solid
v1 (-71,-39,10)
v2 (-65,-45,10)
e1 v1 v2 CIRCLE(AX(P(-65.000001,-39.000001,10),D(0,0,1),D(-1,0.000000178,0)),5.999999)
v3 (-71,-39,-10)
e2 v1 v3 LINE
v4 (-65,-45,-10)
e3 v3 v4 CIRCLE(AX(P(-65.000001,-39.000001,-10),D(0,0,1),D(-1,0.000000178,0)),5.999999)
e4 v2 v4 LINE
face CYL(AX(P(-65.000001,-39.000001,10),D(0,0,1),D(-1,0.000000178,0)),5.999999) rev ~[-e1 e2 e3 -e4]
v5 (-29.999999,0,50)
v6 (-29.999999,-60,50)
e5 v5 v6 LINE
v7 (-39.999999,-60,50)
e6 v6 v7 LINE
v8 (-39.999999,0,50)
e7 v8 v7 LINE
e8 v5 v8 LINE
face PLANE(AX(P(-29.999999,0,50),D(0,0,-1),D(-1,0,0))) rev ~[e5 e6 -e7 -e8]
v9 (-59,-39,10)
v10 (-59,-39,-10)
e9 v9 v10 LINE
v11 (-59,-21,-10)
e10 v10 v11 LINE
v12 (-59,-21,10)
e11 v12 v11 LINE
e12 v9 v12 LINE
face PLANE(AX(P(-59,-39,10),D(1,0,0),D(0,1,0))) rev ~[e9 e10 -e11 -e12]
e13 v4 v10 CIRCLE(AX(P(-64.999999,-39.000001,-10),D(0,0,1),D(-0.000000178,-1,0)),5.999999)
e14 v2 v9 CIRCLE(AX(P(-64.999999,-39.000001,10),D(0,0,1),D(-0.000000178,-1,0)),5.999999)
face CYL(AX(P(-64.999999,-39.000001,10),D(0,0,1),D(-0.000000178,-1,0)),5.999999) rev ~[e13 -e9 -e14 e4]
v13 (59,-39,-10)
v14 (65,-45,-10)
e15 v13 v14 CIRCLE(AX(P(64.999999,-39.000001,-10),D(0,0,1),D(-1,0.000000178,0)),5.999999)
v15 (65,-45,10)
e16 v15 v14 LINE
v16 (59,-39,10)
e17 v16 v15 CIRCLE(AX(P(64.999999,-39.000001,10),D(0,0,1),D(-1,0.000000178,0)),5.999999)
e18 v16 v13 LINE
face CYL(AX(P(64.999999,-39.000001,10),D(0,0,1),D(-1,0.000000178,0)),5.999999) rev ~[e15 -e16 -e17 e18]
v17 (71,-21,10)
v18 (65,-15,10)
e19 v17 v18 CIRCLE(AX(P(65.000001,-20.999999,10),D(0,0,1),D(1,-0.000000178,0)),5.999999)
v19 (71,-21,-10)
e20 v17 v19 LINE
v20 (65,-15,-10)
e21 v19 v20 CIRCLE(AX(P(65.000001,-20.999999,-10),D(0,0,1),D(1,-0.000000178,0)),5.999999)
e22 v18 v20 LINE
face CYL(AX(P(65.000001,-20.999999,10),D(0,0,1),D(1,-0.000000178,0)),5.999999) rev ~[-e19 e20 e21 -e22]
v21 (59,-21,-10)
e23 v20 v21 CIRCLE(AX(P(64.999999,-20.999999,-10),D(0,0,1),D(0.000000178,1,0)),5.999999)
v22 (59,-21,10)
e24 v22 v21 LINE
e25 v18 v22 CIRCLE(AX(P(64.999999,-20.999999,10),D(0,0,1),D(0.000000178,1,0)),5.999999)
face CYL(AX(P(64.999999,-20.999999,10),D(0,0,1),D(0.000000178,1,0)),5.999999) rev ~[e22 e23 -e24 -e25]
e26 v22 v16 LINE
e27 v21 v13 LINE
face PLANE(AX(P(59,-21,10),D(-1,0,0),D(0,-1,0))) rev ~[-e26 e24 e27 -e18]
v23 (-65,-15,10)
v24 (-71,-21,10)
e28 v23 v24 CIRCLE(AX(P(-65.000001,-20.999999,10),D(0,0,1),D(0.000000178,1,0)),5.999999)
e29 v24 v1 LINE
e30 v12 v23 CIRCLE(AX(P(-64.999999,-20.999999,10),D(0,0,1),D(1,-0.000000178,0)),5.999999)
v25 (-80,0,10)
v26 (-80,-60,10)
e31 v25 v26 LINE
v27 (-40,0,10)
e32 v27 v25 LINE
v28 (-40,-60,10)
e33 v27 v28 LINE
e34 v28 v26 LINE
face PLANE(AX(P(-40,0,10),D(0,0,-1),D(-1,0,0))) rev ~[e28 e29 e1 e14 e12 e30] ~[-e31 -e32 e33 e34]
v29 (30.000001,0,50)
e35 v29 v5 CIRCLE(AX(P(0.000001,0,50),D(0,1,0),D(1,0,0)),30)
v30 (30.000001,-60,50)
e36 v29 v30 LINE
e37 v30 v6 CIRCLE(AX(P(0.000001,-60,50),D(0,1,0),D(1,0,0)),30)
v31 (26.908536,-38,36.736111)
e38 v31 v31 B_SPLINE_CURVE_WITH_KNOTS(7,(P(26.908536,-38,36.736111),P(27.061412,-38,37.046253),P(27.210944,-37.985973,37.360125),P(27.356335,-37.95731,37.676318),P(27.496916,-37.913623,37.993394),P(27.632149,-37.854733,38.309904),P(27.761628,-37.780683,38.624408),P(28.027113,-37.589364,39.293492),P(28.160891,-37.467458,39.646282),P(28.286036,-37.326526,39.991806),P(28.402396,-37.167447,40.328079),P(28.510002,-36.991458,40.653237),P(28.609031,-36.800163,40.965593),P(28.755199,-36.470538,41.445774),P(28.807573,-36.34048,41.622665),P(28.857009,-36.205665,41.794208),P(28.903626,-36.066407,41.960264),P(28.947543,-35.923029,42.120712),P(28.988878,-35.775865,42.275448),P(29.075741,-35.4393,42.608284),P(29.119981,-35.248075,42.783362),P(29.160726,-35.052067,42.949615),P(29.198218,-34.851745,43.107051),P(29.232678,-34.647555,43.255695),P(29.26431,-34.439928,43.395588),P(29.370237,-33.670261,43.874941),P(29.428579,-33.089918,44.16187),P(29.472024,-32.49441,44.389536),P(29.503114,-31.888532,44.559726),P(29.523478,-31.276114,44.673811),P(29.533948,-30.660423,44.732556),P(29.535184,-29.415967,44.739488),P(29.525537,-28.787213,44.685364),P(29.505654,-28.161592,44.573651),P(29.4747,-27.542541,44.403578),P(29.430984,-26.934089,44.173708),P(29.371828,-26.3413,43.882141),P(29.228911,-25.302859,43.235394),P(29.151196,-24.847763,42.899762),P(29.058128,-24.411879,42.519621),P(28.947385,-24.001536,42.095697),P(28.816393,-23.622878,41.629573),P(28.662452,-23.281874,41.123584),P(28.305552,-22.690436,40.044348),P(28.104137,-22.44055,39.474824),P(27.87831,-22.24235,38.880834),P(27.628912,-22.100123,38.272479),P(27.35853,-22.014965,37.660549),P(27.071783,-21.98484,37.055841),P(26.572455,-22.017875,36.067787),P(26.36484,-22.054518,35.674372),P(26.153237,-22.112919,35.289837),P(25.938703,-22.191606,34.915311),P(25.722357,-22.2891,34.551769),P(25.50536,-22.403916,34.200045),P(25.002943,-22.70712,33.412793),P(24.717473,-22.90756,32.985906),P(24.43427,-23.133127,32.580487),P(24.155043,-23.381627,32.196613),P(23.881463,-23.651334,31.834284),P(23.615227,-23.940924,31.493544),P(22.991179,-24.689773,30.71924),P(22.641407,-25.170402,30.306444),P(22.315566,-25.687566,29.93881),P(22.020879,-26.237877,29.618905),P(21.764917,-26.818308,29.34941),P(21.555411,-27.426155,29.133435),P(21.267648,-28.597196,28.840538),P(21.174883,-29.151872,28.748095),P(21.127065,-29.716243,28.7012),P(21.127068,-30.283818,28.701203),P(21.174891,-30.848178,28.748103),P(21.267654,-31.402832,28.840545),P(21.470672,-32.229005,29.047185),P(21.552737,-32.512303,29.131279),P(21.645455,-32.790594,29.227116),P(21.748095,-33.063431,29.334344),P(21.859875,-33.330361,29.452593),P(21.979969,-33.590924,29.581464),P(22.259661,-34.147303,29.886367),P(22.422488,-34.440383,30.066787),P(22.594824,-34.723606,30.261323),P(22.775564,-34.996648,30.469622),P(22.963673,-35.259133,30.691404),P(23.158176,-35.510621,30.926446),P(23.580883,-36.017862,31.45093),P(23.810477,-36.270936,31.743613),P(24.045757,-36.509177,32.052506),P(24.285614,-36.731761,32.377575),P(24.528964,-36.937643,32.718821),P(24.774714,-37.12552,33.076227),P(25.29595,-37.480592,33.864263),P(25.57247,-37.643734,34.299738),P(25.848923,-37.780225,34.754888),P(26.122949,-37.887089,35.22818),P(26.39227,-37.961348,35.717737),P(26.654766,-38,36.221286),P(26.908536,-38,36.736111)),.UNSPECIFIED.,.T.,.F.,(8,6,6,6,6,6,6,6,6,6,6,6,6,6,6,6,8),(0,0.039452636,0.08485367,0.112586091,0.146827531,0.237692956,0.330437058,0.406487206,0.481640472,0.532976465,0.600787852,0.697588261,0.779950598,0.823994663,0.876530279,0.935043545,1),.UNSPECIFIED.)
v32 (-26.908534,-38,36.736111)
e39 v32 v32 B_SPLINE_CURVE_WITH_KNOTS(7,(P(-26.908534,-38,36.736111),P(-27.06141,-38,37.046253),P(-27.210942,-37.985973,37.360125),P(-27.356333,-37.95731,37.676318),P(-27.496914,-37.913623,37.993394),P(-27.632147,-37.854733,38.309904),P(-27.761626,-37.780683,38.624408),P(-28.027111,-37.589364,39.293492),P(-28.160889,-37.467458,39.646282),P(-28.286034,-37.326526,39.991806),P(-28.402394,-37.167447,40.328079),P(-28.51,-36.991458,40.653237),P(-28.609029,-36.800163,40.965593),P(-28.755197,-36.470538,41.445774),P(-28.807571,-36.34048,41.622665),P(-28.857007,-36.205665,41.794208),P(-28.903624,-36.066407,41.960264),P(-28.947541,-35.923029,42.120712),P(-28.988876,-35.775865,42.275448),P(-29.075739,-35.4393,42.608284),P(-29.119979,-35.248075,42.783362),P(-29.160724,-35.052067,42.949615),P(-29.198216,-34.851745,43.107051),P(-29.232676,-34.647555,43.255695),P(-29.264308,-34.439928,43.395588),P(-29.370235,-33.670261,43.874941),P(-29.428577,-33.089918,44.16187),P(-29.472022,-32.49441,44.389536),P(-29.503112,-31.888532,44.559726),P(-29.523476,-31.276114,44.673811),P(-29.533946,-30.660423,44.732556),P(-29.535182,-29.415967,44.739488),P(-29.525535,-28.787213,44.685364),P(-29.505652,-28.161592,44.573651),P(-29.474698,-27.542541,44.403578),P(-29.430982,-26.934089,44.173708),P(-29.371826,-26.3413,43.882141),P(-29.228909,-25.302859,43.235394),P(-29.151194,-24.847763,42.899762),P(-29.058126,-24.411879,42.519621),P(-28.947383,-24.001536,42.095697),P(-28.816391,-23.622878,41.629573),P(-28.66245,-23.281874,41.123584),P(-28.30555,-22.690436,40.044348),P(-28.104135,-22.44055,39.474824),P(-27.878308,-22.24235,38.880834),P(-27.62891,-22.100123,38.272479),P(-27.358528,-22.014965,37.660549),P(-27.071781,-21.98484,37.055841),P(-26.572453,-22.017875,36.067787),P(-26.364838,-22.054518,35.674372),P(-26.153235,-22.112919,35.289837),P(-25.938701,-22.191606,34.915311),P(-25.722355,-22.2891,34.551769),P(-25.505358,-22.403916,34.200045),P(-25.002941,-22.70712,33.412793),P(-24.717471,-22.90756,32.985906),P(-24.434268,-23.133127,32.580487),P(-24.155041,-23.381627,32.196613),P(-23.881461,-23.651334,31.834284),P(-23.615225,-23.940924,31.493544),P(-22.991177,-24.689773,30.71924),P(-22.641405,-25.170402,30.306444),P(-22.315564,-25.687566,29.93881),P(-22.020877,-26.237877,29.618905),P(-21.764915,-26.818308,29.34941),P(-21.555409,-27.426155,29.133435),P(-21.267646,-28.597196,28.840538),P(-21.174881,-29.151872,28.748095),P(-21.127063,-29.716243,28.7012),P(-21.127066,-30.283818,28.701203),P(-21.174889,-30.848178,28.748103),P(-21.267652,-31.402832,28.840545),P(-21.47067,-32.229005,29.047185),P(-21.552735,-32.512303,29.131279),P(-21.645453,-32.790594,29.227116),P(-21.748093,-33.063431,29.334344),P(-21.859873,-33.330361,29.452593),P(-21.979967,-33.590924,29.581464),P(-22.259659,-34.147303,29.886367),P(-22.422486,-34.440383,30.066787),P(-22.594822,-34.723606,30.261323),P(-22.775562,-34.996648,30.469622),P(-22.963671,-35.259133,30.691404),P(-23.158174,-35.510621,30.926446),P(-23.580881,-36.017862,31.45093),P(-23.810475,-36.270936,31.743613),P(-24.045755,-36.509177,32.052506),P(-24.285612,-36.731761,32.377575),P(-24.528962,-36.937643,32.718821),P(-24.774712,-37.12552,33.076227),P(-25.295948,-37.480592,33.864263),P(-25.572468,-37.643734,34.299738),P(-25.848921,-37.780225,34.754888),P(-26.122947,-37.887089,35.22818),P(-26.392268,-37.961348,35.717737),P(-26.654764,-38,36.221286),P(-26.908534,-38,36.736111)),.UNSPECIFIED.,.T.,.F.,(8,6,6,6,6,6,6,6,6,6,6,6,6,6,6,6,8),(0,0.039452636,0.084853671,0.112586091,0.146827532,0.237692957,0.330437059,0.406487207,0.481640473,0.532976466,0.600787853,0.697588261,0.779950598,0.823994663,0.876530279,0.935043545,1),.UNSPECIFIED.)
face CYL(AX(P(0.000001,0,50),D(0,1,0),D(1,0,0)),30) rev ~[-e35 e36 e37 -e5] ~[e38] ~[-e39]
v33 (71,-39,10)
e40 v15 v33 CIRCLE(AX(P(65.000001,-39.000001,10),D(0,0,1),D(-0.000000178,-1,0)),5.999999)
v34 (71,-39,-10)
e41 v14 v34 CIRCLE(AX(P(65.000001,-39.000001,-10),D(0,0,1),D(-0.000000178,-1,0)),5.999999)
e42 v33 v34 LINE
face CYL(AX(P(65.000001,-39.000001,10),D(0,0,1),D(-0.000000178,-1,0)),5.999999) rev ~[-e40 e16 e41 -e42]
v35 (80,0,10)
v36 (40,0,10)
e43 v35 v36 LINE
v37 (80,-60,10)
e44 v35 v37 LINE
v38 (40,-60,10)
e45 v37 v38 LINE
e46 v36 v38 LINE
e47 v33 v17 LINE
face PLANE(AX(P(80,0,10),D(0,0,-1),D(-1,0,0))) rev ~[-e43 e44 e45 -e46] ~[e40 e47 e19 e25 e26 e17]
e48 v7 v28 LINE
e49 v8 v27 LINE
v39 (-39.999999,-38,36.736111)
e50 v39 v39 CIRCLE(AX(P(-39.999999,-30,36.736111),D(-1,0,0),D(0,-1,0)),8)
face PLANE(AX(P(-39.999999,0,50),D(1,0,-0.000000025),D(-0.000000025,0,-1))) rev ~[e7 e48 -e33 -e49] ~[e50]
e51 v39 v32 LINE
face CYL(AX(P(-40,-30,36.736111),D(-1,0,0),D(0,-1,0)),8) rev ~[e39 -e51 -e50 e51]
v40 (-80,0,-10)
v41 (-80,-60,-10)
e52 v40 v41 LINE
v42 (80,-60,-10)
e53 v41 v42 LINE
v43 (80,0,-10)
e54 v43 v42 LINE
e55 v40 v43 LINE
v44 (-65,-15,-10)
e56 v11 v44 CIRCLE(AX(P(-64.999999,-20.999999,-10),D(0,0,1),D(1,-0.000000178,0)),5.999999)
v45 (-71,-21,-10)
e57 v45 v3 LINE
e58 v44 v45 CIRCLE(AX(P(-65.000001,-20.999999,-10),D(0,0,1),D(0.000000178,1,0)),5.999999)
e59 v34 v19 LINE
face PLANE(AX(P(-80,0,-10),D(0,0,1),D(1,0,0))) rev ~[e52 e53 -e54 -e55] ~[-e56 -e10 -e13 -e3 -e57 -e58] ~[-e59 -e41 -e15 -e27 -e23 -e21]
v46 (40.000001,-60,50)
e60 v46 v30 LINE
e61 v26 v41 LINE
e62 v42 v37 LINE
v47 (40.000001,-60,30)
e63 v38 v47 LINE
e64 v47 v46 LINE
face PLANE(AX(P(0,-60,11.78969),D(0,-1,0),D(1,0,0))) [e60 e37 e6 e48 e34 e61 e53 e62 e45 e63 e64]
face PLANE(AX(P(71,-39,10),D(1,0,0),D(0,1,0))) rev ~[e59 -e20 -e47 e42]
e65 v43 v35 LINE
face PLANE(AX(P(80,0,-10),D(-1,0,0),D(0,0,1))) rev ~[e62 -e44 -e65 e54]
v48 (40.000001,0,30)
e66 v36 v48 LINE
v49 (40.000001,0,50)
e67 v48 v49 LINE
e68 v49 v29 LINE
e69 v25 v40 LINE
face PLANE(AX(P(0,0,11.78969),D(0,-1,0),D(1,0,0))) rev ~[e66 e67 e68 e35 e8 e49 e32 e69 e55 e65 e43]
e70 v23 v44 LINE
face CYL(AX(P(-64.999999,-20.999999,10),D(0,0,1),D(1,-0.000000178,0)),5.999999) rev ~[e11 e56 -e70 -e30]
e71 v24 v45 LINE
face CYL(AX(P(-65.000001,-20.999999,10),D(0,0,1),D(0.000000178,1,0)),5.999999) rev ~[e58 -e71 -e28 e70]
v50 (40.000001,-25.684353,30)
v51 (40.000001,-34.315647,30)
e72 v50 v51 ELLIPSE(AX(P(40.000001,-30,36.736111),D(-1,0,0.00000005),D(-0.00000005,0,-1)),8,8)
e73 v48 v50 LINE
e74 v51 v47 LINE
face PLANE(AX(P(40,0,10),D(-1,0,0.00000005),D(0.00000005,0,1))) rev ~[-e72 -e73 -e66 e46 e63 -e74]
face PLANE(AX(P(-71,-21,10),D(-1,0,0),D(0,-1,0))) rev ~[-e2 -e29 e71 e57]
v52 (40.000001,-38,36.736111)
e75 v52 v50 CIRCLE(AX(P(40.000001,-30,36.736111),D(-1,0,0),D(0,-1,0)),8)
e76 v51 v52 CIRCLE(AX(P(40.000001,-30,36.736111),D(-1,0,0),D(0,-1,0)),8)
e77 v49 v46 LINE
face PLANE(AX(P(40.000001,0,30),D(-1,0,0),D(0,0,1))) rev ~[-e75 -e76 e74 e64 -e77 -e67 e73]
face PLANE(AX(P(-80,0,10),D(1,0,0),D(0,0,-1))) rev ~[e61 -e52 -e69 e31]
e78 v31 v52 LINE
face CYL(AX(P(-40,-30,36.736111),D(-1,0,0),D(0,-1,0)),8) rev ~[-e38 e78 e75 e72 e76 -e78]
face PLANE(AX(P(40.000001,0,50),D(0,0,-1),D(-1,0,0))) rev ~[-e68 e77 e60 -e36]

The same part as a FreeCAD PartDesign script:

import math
import FreeCAD as App
import Part
import Sketcher

V = App.Vector
Q = App.Units.Quantity

doc = App.newDocument("Part")
body = doc.addObject("PartDesign::Body", "Body")

# Sketch on XZ plane
sketch1 = body.newObject("Sketcher::SketchObject", "Sketch")
sketch1.AttachmentSupport = (doc.getObject("XZ_Plane"), [""])
sketch1.MapMode = "FlatFace"
sketch1.addGeometry(Part.LineSegment(V(-80, 10, 0), V(-80, -10, 0)), False)
sketch1.addGeometry(Part.LineSegment(V(-80, -10, 0), V(80, -10, 0)), False)
sketch1.addGeometry(Part.LineSegment(V(80, -10, 0), V(80, 10, 0)), False)
sketch1.addGeometry(Part.LineSegment(V(80, 10, 0), V(40, 10, 0)), False)
sketch1.addGeometry(Part.LineSegment(V(40, 10, 0), V(40.000001, 30, 0)), False)
sketch1.addGeometry(Part.LineSegment(V(40.000001, 30, 0), V(40.000001, 50, 0)), False)
sketch1.addGeometry(Part.LineSegment(V(40.000001, 50, 0), V(30.000001, 50, 0)), False)
sketch1.addGeometry(Part.ArcOfCircle(Part.Circle(V(0.000001, 50, 0), V(0, 0, 1), 30), math.radians(180), math.radians(360)), False)
sketch1.addGeometry(Part.LineSegment(V(-29.999999, 50, 0), V(-39.999999, 50, 0)), False)
sketch1.addGeometry(Part.LineSegment(V(-39.999999, 50, 0), V(-40, 10, 0)), False)
sketch1.addGeometry(Part.LineSegment(V(-40, 10, 0), V(-80, 10, 0)), False)
sketch1.addConstraint(Sketcher.Constraint("Coincident", 0, 2, 1, 1))
sketch1.addConstraint(Sketcher.Constraint("Coincident", 1, 2, 2, 1))
sketch1.addConstraint(Sketcher.Constraint("Coincident", 2, 2, 3, 1))
sketch1.addConstraint(Sketcher.Constraint("Coincident", 3, 2, 4, 1))
sketch1.addConstraint(Sketcher.Constraint("Coincident", 4, 2, 5, 1))
sketch1.addConstraint(Sketcher.Constraint("Coincident", 5, 2, 6, 1))
sketch1.addConstraint(Sketcher.Constraint("Coincident", 6, 2, 7, 2))
sketch1.addConstraint(Sketcher.Constraint("Coincident", 7, 1, 8, 1))
sketch1.addConstraint(Sketcher.Constraint("Coincident", 8, 2, 9, 1))
sketch1.addConstraint(Sketcher.Constraint("Coincident", 9, 2, 10, 1))
sketch1.addConstraint(Sketcher.Constraint("Coincident", 10, 2, 0, 1))
sketch1.addConstraint(Sketcher.Constraint("Vertical", 0))
sketch1.addConstraint(Sketcher.Constraint("Horizontal", 1))
sketch1.addConstraint(Sketcher.Constraint("Vertical", 2))
sketch1.addConstraint(Sketcher.Constraint("Horizontal", 3))
sketch1.addConstraint(Sketcher.Constraint("Vertical", 4))
sketch1.addConstraint(Sketcher.Constraint("Vertical", 5))
sketch1.addConstraint(Sketcher.Constraint("Horizontal", 6))
sketch1.addConstraint(Sketcher.Constraint("Horizontal", 8))
sketch1.addConstraint(Sketcher.Constraint("Vertical", 9))
sketch1.addConstraint(Sketcher.Constraint("Horizontal", 10))
sketch1.addConstraint(Sketcher.Constraint("Symmetric", 0, 2, 2, 2, -1, 1))
sketch1.addConstraint(Sketcher.Constraint("Symmetric", 6, 2, 7, 1, -2))
sketch1.addConstraint(Sketcher.Constraint("Symmetric", 3, 2, 9, 2, -2))
sketch1.addConstraint(Sketcher.Constraint("Horizontal", 7, 3, 5, 2))
sketch1.addConstraint(Sketcher.Constraint("Equal", 2, 4))
sketch1.addConstraint(Sketcher.Constraint("Equal", 4, 5))
sketch1.addConstraint(Sketcher.Constraint("Equal", 10, 9))
sketch1.addConstraint(Sketcher.Constraint("Radius", 7, Q("30 mm")))
sketch1.addConstraint(Sketcher.Constraint("DistanceX", 1, 1, 1, 2, Q("160 mm")))
sketch1.addConstraint(Sketcher.Constraint("DistanceX", 3, 2, 3, 1, Q("40 mm")))
pad1 = body.newObject("PartDesign::Pad", "Pad")
pad1.Profile = sketch1
pad1.Length = 60

# Sketch on YZ plane
sketch2 = body.newObject("Sketcher::SketchObject", "Sketch001")
sketch2.AttachmentSupport = (doc.getObject("YZ_Plane"), [""])
sketch2.MapMode = "FlatFace"
sketch2.AttachmentOffset = App.Placement(V(0, 0, -40), App.Rotation())
sketch2.addGeometry(Part.Circle(V(-30, 36.736111, 0), V(0, 0, 1), 8), False)
sketch2.addConstraint(Sketcher.Constraint("Diameter", 0, Q("16 mm")))
sketch2.addConstraint(Sketcher.Constraint("DistanceX", 0, 3, -1, 1, Q("30 mm")))
sketch2.addConstraint(Sketcher.Constraint("DistanceY", -1, 1, 0, 3, Q("36.736111 mm")))
pocket1 = body.newObject("PartDesign::Pocket", "Pocket")
pocket1.Profile = sketch2
pocket1.Type = "ThroughAll"
pocket1.Reversed = True

# Sketch on XY plane
sketch3 = body.newObject("Sketcher::SketchObject", "Sketch002")
sketch3.AttachmentSupport = (doc.getObject("XY_Plane"), [""])
sketch3.MapMode = "FlatFace"
sketch3.AttachmentOffset = App.Placement(V(0, 0, 10), App.Rotation())
sketch3.addGeometry(Part.LineSegment(V(-71, -21, 0), V(-71, -39, 0)), False)
sketch3.addGeometry(Part.ArcOfCircle(Part.Circle(V(-65.000001, -39.000001, 0), V(0, 0, 1), 5.999999), math.radians(179.99999), math.radians(270.00001)), False)
sketch3.addGeometry(Part.ArcOfCircle(Part.Circle(V(-64.999999, -39.000001, 0), V(0, 0, 1), 5.999999), math.radians(-90.00001), math.radians(0.00001)), False)
sketch3.addGeometry(Part.LineSegment(V(-59, -39, 0), V(-59, -21, 0)), False)
sketch3.addGeometry(Part.ArcOfCircle(Part.Circle(V(-64.999999, -20.999999, 0), V(0, 0, 1), 5.999999), math.radians(-0.00001), math.radians(90.00001)), False)
sketch3.addGeometry(Part.ArcOfCircle(Part.Circle(V(-65.000001, -20.999999, 0), V(0, 0, 1), 5.999999), math.radians(89.99999), math.radians(180.00001)), False)
sketch3.addGeometry(Part.LineSegment(V(59, -21, 0), V(59, -39, 0)), False)
sketch3.addGeometry(Part.ArcOfCircle(Part.Circle(V(64.999999, -39.000001, 0), V(0, 0, 1), 5.999999), math.radians(179.99999), math.radians(270.00001)), False)
sketch3.addGeometry(Part.ArcOfCircle(Part.Circle(V(65.000001, -39.000001, 0), V(0, 0, 1), 5.999999), math.radians(-90.00001), math.radians(0.00001)), False)
sketch3.addGeometry(Part.LineSegment(V(71, -39, 0), V(71, -21, 0)), False)
sketch3.addGeometry(Part.ArcOfCircle(Part.Circle(V(65.000001, -20.999999, 0), V(0, 0, 1), 5.999999), math.radians(-0.00001), math.radians(90.00001)), False)
sketch3.addGeometry(Part.ArcOfCircle(Part.Circle(V(64.999999, -20.999999, 0), V(0, 0, 1), 5.999999), math.radians(89.99999), math.radians(180.00001)), False)
sketch3.addConstraint(Sketcher.Constraint("Tangent", 0, 2, 1, 1))
sketch3.addConstraint(Sketcher.Constraint("Tangent", 1, 2, 2, 1))
sketch3.addConstraint(Sketcher.Constraint("Tangent", 2, 2, 3, 1))
sketch3.addConstraint(Sketcher.Constraint("Tangent", 3, 2, 4, 1))
sketch3.addConstraint(Sketcher.Constraint("Tangent", 4, 2, 5, 1))
sketch3.addConstraint(Sketcher.Constraint("Tangent", 5, 2, 0, 1))
sketch3.addConstraint(Sketcher.Constraint("Tangent", 6, 2, 7, 1))
sketch3.addConstraint(Sketcher.Constraint("Tangent", 7, 2, 8, 1))
sketch3.addConstraint(Sketcher.Constraint("Tangent", 8, 2, 9, 1))
sketch3.addConstraint(Sketcher.Constraint("Tangent", 9, 2, 10, 1))
sketch3.addConstraint(Sketcher.Constraint("Tangent", 10, 2, 11, 1))
sketch3.addConstraint(Sketcher.Constraint("Tangent", 11, 2, 6, 1))
sketch3.addConstraint(Sketcher.Constraint("Vertical", 0))
sketch3.addConstraint(Sketcher.Constraint("Vertical", 3))
sketch3.addConstraint(Sketcher.Constraint("Vertical", 6))
sketch3.addConstraint(Sketcher.Constraint("Vertical", 9))
sketch3.addConstraint(Sketcher.Constraint("Equal", 1, 2))
sketch3.addConstraint(Sketcher.Constraint("Equal", 2, 4))
sketch3.addConstraint(Sketcher.Constraint("Equal", 5, 7))
sketch3.addConstraint(Sketcher.Constraint("Equal", 7, 8))
sketch3.addConstraint(Sketcher.Constraint("Equal", 8, 10))
sketch3.addConstraint(Sketcher.Constraint("Symmetric", 1, 3, 7, 3, -2))
sketch3.addConstraint(Sketcher.Constraint("Symmetric", 4, 2, 10, 2, -2))
sketch3.addConstraint(Sketcher.Constraint("Vertical", 5, 3, 1, 2))
sketch3.addConstraint(Sketcher.Constraint("Vertical", 1, 2, 4, 2))
sketch3.addConstraint(Sketcher.Constraint("Vertical", 11, 3, 7, 2))
sketch3.addConstraint(Sketcher.Constraint("Radius", 1, Q("5.999999 mm")))
sketch3.addConstraint(Sketcher.Constraint("DistanceY", 0, 2, 0, 1, Q("18 mm")))
sketch3.addConstraint(Sketcher.Constraint("DistanceX", 1, 3, -1, 1, Q("65.000001 mm")))
sketch3.addConstraint(Sketcher.Constraint("DistanceY", 1, 3, -1, 1, Q("39.000001 mm")))
pocket2 = body.newObject("PartDesign::Pocket", "Pocket001")
pocket2.Profile = sketch3
pocket2.Type = "ThroughAll"

doc.recompute()
